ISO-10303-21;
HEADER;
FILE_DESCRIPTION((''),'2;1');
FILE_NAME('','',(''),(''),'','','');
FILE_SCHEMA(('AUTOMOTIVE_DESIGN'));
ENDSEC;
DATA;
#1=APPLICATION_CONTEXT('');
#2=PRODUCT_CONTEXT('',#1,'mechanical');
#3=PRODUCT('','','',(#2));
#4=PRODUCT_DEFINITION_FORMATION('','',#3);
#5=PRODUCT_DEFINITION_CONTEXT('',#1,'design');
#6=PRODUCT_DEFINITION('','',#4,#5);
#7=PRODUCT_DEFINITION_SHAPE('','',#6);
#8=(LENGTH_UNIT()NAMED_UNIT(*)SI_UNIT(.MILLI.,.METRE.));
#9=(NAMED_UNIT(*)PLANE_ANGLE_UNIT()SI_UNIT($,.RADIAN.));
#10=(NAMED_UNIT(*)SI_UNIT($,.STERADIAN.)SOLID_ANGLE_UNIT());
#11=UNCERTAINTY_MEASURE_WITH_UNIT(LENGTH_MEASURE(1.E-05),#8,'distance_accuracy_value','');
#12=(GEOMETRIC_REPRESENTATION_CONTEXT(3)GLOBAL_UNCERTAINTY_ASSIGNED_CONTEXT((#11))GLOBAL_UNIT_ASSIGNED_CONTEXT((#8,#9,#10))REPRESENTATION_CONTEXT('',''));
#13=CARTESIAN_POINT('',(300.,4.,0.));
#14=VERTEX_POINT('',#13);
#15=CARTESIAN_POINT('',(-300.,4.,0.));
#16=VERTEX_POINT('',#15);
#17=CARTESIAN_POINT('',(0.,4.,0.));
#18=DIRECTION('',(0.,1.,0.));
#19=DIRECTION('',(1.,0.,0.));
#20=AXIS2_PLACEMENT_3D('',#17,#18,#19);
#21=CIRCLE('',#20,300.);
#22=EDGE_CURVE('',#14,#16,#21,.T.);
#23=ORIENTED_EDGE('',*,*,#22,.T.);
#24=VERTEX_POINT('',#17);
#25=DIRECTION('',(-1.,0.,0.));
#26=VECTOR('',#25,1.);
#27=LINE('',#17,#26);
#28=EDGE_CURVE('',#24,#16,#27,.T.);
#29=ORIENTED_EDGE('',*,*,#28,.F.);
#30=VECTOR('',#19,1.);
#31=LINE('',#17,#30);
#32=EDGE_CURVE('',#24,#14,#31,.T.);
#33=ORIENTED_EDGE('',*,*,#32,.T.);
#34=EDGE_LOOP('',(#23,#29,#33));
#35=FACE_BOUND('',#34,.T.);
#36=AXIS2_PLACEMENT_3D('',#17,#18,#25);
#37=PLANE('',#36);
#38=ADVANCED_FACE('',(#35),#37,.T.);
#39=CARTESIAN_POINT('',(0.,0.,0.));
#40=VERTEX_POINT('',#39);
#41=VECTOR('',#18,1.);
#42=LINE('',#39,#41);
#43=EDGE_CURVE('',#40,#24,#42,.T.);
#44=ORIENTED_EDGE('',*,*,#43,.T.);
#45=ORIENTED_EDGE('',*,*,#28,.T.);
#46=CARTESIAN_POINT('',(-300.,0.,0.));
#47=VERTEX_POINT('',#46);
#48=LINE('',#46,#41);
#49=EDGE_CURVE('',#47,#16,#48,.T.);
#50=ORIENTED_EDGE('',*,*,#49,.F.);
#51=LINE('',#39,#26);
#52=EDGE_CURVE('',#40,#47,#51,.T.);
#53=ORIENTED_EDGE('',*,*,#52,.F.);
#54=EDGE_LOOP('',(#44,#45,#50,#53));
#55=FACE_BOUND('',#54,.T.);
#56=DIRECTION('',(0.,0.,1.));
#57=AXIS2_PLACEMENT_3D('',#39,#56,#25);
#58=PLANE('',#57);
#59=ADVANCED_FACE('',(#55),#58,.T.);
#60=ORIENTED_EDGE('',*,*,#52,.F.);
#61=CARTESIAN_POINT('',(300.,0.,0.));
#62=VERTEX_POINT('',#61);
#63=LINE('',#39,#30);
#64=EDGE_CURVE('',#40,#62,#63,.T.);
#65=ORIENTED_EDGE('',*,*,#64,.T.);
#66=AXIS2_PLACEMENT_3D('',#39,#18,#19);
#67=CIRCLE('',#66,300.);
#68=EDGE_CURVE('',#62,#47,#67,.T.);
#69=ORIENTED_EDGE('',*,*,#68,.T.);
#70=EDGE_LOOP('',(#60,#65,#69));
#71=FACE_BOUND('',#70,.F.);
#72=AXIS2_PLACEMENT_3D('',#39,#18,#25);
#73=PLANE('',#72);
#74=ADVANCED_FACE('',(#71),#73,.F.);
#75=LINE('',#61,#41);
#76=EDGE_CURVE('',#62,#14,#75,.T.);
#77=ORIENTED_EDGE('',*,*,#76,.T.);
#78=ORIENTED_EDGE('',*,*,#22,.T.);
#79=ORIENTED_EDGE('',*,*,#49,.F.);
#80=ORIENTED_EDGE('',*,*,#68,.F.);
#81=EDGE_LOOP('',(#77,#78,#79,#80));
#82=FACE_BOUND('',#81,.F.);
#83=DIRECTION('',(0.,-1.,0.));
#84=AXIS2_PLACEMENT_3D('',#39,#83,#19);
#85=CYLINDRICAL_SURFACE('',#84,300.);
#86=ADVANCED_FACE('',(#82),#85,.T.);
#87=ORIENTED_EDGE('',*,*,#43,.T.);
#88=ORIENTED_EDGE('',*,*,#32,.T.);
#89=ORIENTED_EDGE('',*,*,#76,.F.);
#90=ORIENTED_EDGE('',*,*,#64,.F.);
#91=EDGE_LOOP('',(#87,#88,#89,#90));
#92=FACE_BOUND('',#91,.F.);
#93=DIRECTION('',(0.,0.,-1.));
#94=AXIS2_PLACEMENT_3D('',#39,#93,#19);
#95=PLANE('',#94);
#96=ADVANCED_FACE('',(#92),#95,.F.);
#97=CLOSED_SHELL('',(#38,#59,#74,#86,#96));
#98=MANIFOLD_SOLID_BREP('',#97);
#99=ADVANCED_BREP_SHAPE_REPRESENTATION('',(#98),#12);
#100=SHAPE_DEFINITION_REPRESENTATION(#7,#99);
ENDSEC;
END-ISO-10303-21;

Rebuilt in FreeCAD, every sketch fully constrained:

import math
import FreeCAD as App
import Part
import Sketcher

doc = App.newDocument("Part")
body = doc.addObject("PartDesign::Body", "Body")

# Sketch on XZ plane
sketch1 = body.newObject("Sketcher::SketchObject", "Sketch")
sketch1.AttachmentSupport = (doc.getObject("XZ_Plane"), [""])
sketch1.MapMode = "FlatFace"
sketch1.addGeometry(Part.LineSegment(App.Vector(-300, 0, 0), App.Vector(300, 0, 0)), False)
sketch1.addGeometry(Part.ArcOfCircle(Part.Circle(App.Vector(0, 0, 0), App.Vector(0, 0, 1), 300), math.radians(180), math.radians(360)), False)
sketch1.addConstraint(Sketcher.Constraint("Coincident", 0, 1, 1, 1))
sketch1.addConstraint(Sketcher.Constraint("Coincident", 1, 2, 0, 2))
sketch1.addConstraint(Sketcher.Constraint("Horizontal", 0))
sketch1.addConstraint(Sketcher.Constraint("Coincident", 1, 3, -1, 1))
sketch1.addConstraint(Sketcher.Constraint("PointOnObject", 0, 1, -1))
sketch1.addConstraint(Sketcher.Constraint("Radius", 1, 300.0))
pad1 = body.newObject("PartDesign::Pad", "Pad")
pad1.Profile = sketch1
pad1.Length = 4
pad1.Reversed = True

doc.recompute()
